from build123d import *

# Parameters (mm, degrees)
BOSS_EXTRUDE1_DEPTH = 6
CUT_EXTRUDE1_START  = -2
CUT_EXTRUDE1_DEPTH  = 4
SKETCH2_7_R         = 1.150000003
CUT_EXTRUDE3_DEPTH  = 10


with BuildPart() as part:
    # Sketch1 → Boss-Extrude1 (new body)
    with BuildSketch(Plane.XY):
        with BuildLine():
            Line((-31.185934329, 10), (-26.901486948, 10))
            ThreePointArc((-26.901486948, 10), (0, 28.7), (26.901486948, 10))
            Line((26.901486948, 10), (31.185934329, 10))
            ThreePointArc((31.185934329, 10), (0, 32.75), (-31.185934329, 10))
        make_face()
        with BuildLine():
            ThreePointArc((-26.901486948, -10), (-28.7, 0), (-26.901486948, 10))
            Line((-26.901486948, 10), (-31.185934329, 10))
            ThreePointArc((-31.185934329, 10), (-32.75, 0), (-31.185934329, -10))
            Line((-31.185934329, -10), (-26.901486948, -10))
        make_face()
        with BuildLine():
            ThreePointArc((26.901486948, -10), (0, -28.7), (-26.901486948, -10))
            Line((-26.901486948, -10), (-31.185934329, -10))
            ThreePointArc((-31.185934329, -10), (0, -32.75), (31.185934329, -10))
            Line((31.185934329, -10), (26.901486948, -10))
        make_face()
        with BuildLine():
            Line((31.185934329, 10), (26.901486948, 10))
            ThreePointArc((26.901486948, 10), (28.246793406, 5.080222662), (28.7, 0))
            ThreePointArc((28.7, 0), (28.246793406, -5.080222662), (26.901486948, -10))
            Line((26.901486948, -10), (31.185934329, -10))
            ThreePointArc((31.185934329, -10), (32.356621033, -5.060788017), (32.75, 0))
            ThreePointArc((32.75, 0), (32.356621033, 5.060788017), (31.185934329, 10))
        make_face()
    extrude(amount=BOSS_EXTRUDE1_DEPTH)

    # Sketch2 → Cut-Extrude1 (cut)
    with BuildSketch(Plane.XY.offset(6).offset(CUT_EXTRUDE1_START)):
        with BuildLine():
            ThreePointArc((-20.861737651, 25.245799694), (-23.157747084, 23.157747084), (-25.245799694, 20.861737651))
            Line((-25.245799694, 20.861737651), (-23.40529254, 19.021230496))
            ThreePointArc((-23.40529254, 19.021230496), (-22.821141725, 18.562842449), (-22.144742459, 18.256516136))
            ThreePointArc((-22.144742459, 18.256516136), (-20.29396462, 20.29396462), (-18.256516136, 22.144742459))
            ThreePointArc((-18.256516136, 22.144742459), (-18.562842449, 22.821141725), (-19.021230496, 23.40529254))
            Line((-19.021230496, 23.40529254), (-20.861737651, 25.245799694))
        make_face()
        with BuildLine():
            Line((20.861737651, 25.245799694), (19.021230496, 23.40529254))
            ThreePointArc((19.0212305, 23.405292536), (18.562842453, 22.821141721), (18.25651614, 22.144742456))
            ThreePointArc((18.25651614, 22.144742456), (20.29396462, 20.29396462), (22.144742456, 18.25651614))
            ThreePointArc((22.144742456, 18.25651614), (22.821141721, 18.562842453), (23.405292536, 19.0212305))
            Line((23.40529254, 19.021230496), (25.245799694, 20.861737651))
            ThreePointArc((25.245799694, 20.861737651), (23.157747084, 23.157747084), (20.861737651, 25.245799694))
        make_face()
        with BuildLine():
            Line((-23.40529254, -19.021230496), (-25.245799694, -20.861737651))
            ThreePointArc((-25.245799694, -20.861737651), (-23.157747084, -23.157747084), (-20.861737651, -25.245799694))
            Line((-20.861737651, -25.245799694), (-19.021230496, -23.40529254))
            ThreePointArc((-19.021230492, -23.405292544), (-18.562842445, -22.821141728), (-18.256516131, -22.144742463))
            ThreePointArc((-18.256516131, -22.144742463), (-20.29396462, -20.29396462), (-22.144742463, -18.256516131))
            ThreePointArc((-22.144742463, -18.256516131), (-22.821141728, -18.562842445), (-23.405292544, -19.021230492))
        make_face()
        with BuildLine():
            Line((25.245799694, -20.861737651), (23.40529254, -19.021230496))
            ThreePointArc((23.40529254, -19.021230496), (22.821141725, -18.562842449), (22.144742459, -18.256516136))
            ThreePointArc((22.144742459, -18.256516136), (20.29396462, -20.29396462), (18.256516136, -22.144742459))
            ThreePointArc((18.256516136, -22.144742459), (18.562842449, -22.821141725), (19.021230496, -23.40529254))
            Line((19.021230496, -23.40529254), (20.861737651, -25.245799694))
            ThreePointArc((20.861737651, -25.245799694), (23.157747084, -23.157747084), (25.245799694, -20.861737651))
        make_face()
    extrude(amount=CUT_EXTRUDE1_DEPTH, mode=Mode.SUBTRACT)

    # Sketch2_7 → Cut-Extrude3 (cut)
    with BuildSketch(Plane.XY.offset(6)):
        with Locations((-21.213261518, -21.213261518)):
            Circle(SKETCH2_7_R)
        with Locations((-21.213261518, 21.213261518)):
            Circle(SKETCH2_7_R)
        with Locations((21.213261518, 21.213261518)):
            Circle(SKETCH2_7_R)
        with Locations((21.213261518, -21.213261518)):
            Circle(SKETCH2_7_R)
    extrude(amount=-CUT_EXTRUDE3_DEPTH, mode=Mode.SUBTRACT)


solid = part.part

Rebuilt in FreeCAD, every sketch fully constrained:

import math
import FreeCAD as App
import Part
import Sketcher
from FreeCAD import Vector
Q = App.Units.Quantity

doc = App.newDocument("Part")
body = doc.addObject("PartDesign::Body", "Body")

# Sketch on XY plane
sketch1 = doc.addObject("Sketcher::SketchObject", "Sketch")
body.addObject(sketch1)
sketch1.AttachmentSupport = (doc.XY_Plane, [""])
sketch1.MapMode = "FlatFace"
sketch1.addGeometry([
    Part.ArcOfCircle(Part.Circle(Vector(0, 0, 0), Vector(0, 0, 1), 33), math.radians(18), math.radians(162)),  # 0
    Part.ArcOfCircle(Part.Circle(Vector(0, 0, 0), Vector(0, 0, 1), 33), math.radians(162), math.radians(198)),  # 1
    Part.ArcOfCircle(Part.Circle(Vector(0, 0, 0), Vector(0, 0, 1), 33), math.radians(-162), math.radians(-18)),  # 2
    Part.ArcOfCircle(Part.Circle(Vector(0, 0, 0), Vector(0, 0, 1), 33), math.radians(-17.78), math.radians(0)),  # 3
    Part.ArcOfCircle(Part.Circle(Vector(0, 0, 0), Vector(0, 0, 1), 33), math.radians(0), math.radians(17.78)),  # 4
    Part.ArcOfCircle(Part.Circle(Vector(0, 0, 0), Vector(0, 0, 1), 29), math.radians(20), math.radians(160)),  # 5
    Part.ArcOfCircle(Part.Circle(Vector(0, 0, 0), Vector(0, 0, 1), 29), math.radians(0), math.radians(20)),  # 6
    Part.ArcOfCircle(Part.Circle(Vector(0, 0, 0), Vector(0, 0, 1), 29), math.radians(-20), math.radians(0)),  # 7
    Part.ArcOfCircle(Part.Circle(Vector(0, 0, 0), Vector(0, 0, 1), 29), math.radians(-160), math.radians(-20)),  # 8
    Part.ArcOfCircle(Part.Circle(Vector(0, 0, 0), Vector(0, 0, 1), 29), math.radians(160), math.radians(200)),  # 9
], False)
sketch1.addConstraint([
    Sketcher.Constraint("Tangent", 0, 2, 1, 1),
    Sketcher.Constraint("Tangent", 1, 2, 2, 1),
    Sketcher.Constraint("Tangent", 2, 2, 3, 1),
    Sketcher.Constraint("Tangent", 3, 2, 4, 1),
    Sketcher.Constraint("Tangent", 4, 2, 0, 1),
    Sketcher.Constraint("Tangent", 5, 1, 6, 2),
    Sketcher.Constraint("Tangent", 6, 1, 7, 2),
    Sketcher.Constraint("Tangent", 7, 1, 8, 2),
    Sketcher.Constraint("Tangent", 8, 1, 9, 2),
    Sketcher.Constraint("Tangent", 9, 1, 5, 2),
    Sketcher.Constraint("Coincident", 0, 3, -1, 1),
    Sketcher.Constraint("Coincident", 2, 3, -1, 1),
    Sketcher.Constraint("Coincident", 5, 3, -1, 1),
    Sketcher.Constraint("Coincident", 7, 3, -1, 1),
    Sketcher.Constraint("PointOnObject", 3, 2, -1),
    Sketcher.Constraint("PointOnObject", 6, 1, -1),
    Sketcher.Constraint("Horizontal", 1, 2, 2, 2),
    Sketcher.Constraint("Horizontal", 0, 2, 4, 2),
    Sketcher.Constraint("Horizontal", 4, 2, 5, 1),
    Sketcher.Constraint("Horizontal", 2, 2, 7, 1),
    Sketcher.Constraint("Horizontal", 7, 1, 8, 1),
    Sketcher.Constraint("Horizontal", 5, 1, 9, 1),
    Sketcher.Constraint("Vertical", 0, 2, 1, 2),
    Sketcher.Constraint("Radius", 5, Q("28.7 mm")),
    Sketcher.Constraint("Radius", 0, Q("32.75 mm")),
    Sketcher.Constraint("DistanceY", -1, 1, 0, 2, Q("10 mm")),
])
pad1 = doc.addObject("PartDesign::Pad", "Pad")
body.addObject(pad1)
pad1.Profile = sketch1
pad1.Length = 6

# Sketch on XY plane
sketch2 = doc.addObject("Sketcher::SketchObject", "Sketch001")
body.addObject(sketch2)
sketch2.AttachmentSupport = (doc.XY_Plane, [""])
sketch2.MapMode = "FlatFace"
sketch2.AttachmentOffset = App.Placement(Vector(0, 0, 4), App.Rotation())
sketch2.addGeometry([
    Part.ArcOfCircle(Part.Circle(Vector(0, 0, 0), Vector(0, 0, 1), 32.7), math.radians(129.57), math.radians(140.43)),  # 0
    Part.LineSegment(Vector(-25.2, 20.9, 0), Vector(-23.4, 19, 0)),  # 1
    Part.ArcOfCircle(Part.Circle(Vector(-21.2, 21.2, 0), Vector(0, 0, 1), 3.1), math.radians(-135), math.radians(-107)),  # 2
    Part.ArcOfCircle(Part.Circle(Vector(0, 0, 0), Vector(0, 0, 1), 28.7), math.radians(129.5), math.radians(140.5)),  # 3
    Part.ArcOfCircle(Part.Circle(Vector(-21.2, 21.2, 0), Vector(0, 0, 1), 3.1), math.radians(17), math.radians(45)),  # 4
    Part.LineSegment(Vector(-19, 23.4, 0), Vector(-20.9, 25.2, 0)),  # 5
    Part.LineSegment(Vector(20.9, 25.2, 0), Vector(19, 23.4, 0)),  # 6
    Part.ArcOfCircle(Part.Circle(Vector(21.2, 21.2, 0), Vector(0, 0, 1), 3.1), math.radians(135), math.radians(163)),  # 7
    Part.ArcOfCircle(Part.Circle(Vector(0, 0, 0), Vector(0, 0, 1), 28.7), math.radians(39.5), math.radians(50.5)),  # 8
    Part.ArcOfCircle(Part.Circle(Vector(21.2, 21.2, 0), Vector(0, 0, 1), 3.1), math.radians(-73), math.radians(-45)),  # 9
    Part.LineSegment(Vector(23.4, 19, 0), Vector(25.2, 20.9, 0)),  # 10
    Part.ArcOfCircle(Part.Circle(Vector(0, 0, 0), Vector(0, 0, 1), 32.7), math.radians(39.57), math.radians(50.43)),  # 11
    Part.LineSegment(Vector(-23.4, -19, 0), Vector(-25.2, -20.9, 0)),  # 12
    Part.ArcOfCircle(Part.Circle(Vector(0, 0, 0), Vector(0, 0, 1), 32.7), math.radians(-140.43), math.radians(-129.57)),  # 13
    Part.LineSegment(Vector(-20.9, -25.2, 0), Vector(-19, -23.4, 0)),  # 14
    Part.ArcOfCircle(Part.Circle(Vector(-21.2, -21.2, 0), Vector(0, 0, 1), 3.1), math.radians(-45), math.radians(-17)),  # 15
    Part.ArcOfCircle(Part.Circle(Vector(0, 0, 0), Vector(0, 0, 1), 28.7), math.radians(-140.5), math.radians(-129.5)),  # 16
    Part.ArcOfCircle(Part.Circle(Vector(-21.2, -21.2, 0), Vector(0, 0, 1), 3.1), math.radians(107), math.radians(135)),  # 17
    Part.LineSegment(Vector(25.2, -20.9, 0), Vector(23.4, -19, 0)),  # 18
    Part.ArcOfCircle(Part.Circle(Vector(21.2, -21.2, 0), Vector(0, 0, 1), 3.1), math.radians(45), math.radians(73)),  # 19
    Part.ArcOfCircle(Part.Circle(Vector(0, 0, 0), Vector(0, 0, 1), 28.7), math.radians(-50.5), math.radians(-39.5)),  # 20
    Part.ArcOfCircle(Part.Circle(Vector(21.2, -21.2, 0), Vector(0, 0, 1), 3.1), math.radians(-163), math.radians(-135)),  # 21
    Part.LineSegment(Vector(19, -23.4, 0), Vector(20.9, -25.2, 0)),  # 22
    Part.ArcOfCircle(Part.Circle(Vector(0, 0, 0), Vector(0, 0, 1), 32.7), math.radians(-50.43), math.radians(-39.57)),  # 23
], False)
sketch2.addConstraint([
    Sketcher.Constraint("Coincident", 0, 2, 1, 1),
    Sketcher.Constraint("Tangent", 1, 2, 2, 1),
    Sketcher.Constraint("Coincident", 2, 2, 3, 2),
    Sketcher.Constraint("Coincident", 3, 1, 4, 1),
    Sketcher.Constraint("Tangent", 4, 2, 5, 1),
    Sketcher.Constraint("Coincident", 5, 2, 0, 1),
    Sketcher.Constraint("Tangent", 6, 2, 7, 1),
    Sketcher.Constraint("Coincident", 7, 2, 8, 2),
    Sketcher.Constraint("Coincident", 8, 1, 9, 1),
    Sketcher.Constraint("Tangent", 9, 2, 10, 1),
    Sketcher.Constraint("Coincident", 10, 2, 11, 1),
    Sketcher.Constraint("Coincident", 11, 2, 6, 1),
    Sketcher.Constraint("Coincident", 12, 2, 13, 1),
    Sketcher.Constraint("Coincident", 13, 2, 14, 1),
    Sketcher.Constraint("Tangent", 14, 2, 15, 1),
    Sketcher.Constraint("Coincident", 15, 2, 16, 2),
    Sketcher.Constraint("Coincident", 16, 1, 17, 1),
    Sketcher.Constraint("Tangent", 17, 2, 12, 1),
    Sketcher.Constraint("Tangent", 18, 2, 19, 1),
    Sketcher.Constraint("Coincident", 19, 2, 20, 2),
    Sketcher.Constraint("Coincident", 20, 1, 21, 1),
    Sketcher.Constraint("Tangent", 21, 2, 22, 1),
    Sketcher.Constraint("Coincident", 22, 2, 23, 1),
    Sketcher.Constraint("Coincident", 23, 2, 18, 1),
    Sketcher.Constraint("Coincident", 0, 3, -1, 1),
    Sketcher.Constraint("Coincident", 3, 3, -1, 1),
    Sketcher.Constraint("Coincident", 8, 3, -1, 1),
    Sketcher.Constraint("Coincident", 11, 3, -1, 1),
    Sketcher.Constraint("Coincident", 13, 3, -1, 1),
    Sketcher.Constraint("Coincident", 16, 3, -1, 1),
    Sketcher.Constraint("Coincident", 20, 3, -1, 1),
    Sketcher.Constraint("Coincident", 23, 3, -1, 1),
    Sketcher.Constraint("Coincident", 4, 3, 2, 3),
    Sketcher.Constraint("Coincident", 9, 3, 7, 3),
    Sketcher.Constraint("Coincident", 17, 3, 15, 3),
    Sketcher.Constraint("Coincident", 21, 3, 19, 3),
    Sketcher.Constraint("Equal", 2, 4),
    Sketcher.Constraint("Equal", 4, 7),
    Sketcher.Constraint("Equal", 3, 8),
    Sketcher.Constraint("Equal", 7, 9),
    Sketcher.Constraint("Equal", 0, 11),
    Sketcher.Constraint("Equal", 11, 13),
    Sketcher.Constraint("Equal", 9, 15),
    Sketcher.Constraint("Equal", 8, 16),
    Sketcher.Constraint("Equal", 15, 17),
    Sketcher.Constraint("Equal", 17, 19),
    Sketcher.Constraint("Equal", 16, 20),
    Sketcher.Constraint("Equal", 19, 21),
    Sketcher.Constraint("Equal", 13, 23),
    Sketcher.Constraint("Symmetric", 7, 3, 15, 3, -1, 1),
    Sketcher.Constraint("Symmetric", 2, 3, 19, 3, -1, 1),
    Sketcher.Constraint("Symmetric", 2, 3, 7, 3, -2),
    Sketcher.Constraint("Parallel", 1, 5),
    Sketcher.Constraint("Perpendicular", 5, 6),
    Sketcher.Constraint("Parallel", 6, 10),
    Sketcher.Constraint("Parallel", 10, 12),
    Sketcher.Constraint("Parallel", 12, 14),
    Sketcher.Constraint("Perpendicular", 14, 18),
    Sketcher.Constraint("Parallel", 18, 22),
    Sketcher.Constraint("Horizontal", 4, 2, 6, 2),
    Sketcher.Constraint("Equal", 1, 5),
    Sketcher.Constraint("Radius", 2, Q("3.1 mm")),
    Sketcher.Constraint("Radius", 3, Q("28.7 mm")),
    Sketcher.Constraint("Radius", 0, Q("32.75 mm")),
    Sketcher.Constraint("Distance", 1, Q("2.60287 mm")),
])
pocket1 = doc.addObject("PartDesign::Pocket", "Pocket")
body.addObject(pocket1)
pocket1.Profile = sketch2
pocket1.Length = 4
pocket1.Reversed = True

# Sketch on XY plane
sketch3 = doc.addObject("Sketcher::SketchObject", "Sketch002")
body.addObject(sketch3)
sketch3.AttachmentSupport = (doc.XY_Plane, [""])
sketch3.MapMode = "FlatFace"
sketch3.AttachmentOffset = App.Placement(Vector(0, 0, 6), App.Rotation())
sketch3.addGeometry([
    Part.Circle(Vector(-21.2, -21.2, 0), Vector(0, 0, 1), 1.2),
    Part.Circle(Vector(-21.2, 21.2, 0), Vector(0, 0, 1), 1.2),
    Part.Circle(Vector(21.2, 21.2, 0), Vector(0, 0, 1), 1.2),
    Part.Circle(Vector(21.2, -21.2, 0), Vector(0, 0, 1), 1.2),
], False)
sketch3.addConstraint([
    Sketcher.Constraint("Equal", 0, 1),
    Sketcher.Constraint("Equal", 1, 2),
    Sketcher.Constraint("Equal", 2, 3),
    Sketcher.Constraint("Symmetric", 0, 3, 2, 3, -1, 1),
    Sketcher.Constraint("Symmetric", 1, 3, 3, 3, -1, 1),
    Sketcher.Constraint("Symmetric", 1, 3, 2, 3, -2),
    Sketcher.Constraint("Diameter", 0, Q("2.3 mm")),
    Sketcher.Constraint("DistanceX", 0, 3, -1, 1, Q("21.213262 mm")),
    Sketcher.Constraint("DistanceY", 0, 3, -1, 1, Q("21.213262 mm")),
])
pocket2 = doc.addObject("PartDesign::Pocket", "Pocket001")
body.addObject(pocket2)
pocket2.Profile = sketch3
pocket2.Length = 10

doc.recompute()
